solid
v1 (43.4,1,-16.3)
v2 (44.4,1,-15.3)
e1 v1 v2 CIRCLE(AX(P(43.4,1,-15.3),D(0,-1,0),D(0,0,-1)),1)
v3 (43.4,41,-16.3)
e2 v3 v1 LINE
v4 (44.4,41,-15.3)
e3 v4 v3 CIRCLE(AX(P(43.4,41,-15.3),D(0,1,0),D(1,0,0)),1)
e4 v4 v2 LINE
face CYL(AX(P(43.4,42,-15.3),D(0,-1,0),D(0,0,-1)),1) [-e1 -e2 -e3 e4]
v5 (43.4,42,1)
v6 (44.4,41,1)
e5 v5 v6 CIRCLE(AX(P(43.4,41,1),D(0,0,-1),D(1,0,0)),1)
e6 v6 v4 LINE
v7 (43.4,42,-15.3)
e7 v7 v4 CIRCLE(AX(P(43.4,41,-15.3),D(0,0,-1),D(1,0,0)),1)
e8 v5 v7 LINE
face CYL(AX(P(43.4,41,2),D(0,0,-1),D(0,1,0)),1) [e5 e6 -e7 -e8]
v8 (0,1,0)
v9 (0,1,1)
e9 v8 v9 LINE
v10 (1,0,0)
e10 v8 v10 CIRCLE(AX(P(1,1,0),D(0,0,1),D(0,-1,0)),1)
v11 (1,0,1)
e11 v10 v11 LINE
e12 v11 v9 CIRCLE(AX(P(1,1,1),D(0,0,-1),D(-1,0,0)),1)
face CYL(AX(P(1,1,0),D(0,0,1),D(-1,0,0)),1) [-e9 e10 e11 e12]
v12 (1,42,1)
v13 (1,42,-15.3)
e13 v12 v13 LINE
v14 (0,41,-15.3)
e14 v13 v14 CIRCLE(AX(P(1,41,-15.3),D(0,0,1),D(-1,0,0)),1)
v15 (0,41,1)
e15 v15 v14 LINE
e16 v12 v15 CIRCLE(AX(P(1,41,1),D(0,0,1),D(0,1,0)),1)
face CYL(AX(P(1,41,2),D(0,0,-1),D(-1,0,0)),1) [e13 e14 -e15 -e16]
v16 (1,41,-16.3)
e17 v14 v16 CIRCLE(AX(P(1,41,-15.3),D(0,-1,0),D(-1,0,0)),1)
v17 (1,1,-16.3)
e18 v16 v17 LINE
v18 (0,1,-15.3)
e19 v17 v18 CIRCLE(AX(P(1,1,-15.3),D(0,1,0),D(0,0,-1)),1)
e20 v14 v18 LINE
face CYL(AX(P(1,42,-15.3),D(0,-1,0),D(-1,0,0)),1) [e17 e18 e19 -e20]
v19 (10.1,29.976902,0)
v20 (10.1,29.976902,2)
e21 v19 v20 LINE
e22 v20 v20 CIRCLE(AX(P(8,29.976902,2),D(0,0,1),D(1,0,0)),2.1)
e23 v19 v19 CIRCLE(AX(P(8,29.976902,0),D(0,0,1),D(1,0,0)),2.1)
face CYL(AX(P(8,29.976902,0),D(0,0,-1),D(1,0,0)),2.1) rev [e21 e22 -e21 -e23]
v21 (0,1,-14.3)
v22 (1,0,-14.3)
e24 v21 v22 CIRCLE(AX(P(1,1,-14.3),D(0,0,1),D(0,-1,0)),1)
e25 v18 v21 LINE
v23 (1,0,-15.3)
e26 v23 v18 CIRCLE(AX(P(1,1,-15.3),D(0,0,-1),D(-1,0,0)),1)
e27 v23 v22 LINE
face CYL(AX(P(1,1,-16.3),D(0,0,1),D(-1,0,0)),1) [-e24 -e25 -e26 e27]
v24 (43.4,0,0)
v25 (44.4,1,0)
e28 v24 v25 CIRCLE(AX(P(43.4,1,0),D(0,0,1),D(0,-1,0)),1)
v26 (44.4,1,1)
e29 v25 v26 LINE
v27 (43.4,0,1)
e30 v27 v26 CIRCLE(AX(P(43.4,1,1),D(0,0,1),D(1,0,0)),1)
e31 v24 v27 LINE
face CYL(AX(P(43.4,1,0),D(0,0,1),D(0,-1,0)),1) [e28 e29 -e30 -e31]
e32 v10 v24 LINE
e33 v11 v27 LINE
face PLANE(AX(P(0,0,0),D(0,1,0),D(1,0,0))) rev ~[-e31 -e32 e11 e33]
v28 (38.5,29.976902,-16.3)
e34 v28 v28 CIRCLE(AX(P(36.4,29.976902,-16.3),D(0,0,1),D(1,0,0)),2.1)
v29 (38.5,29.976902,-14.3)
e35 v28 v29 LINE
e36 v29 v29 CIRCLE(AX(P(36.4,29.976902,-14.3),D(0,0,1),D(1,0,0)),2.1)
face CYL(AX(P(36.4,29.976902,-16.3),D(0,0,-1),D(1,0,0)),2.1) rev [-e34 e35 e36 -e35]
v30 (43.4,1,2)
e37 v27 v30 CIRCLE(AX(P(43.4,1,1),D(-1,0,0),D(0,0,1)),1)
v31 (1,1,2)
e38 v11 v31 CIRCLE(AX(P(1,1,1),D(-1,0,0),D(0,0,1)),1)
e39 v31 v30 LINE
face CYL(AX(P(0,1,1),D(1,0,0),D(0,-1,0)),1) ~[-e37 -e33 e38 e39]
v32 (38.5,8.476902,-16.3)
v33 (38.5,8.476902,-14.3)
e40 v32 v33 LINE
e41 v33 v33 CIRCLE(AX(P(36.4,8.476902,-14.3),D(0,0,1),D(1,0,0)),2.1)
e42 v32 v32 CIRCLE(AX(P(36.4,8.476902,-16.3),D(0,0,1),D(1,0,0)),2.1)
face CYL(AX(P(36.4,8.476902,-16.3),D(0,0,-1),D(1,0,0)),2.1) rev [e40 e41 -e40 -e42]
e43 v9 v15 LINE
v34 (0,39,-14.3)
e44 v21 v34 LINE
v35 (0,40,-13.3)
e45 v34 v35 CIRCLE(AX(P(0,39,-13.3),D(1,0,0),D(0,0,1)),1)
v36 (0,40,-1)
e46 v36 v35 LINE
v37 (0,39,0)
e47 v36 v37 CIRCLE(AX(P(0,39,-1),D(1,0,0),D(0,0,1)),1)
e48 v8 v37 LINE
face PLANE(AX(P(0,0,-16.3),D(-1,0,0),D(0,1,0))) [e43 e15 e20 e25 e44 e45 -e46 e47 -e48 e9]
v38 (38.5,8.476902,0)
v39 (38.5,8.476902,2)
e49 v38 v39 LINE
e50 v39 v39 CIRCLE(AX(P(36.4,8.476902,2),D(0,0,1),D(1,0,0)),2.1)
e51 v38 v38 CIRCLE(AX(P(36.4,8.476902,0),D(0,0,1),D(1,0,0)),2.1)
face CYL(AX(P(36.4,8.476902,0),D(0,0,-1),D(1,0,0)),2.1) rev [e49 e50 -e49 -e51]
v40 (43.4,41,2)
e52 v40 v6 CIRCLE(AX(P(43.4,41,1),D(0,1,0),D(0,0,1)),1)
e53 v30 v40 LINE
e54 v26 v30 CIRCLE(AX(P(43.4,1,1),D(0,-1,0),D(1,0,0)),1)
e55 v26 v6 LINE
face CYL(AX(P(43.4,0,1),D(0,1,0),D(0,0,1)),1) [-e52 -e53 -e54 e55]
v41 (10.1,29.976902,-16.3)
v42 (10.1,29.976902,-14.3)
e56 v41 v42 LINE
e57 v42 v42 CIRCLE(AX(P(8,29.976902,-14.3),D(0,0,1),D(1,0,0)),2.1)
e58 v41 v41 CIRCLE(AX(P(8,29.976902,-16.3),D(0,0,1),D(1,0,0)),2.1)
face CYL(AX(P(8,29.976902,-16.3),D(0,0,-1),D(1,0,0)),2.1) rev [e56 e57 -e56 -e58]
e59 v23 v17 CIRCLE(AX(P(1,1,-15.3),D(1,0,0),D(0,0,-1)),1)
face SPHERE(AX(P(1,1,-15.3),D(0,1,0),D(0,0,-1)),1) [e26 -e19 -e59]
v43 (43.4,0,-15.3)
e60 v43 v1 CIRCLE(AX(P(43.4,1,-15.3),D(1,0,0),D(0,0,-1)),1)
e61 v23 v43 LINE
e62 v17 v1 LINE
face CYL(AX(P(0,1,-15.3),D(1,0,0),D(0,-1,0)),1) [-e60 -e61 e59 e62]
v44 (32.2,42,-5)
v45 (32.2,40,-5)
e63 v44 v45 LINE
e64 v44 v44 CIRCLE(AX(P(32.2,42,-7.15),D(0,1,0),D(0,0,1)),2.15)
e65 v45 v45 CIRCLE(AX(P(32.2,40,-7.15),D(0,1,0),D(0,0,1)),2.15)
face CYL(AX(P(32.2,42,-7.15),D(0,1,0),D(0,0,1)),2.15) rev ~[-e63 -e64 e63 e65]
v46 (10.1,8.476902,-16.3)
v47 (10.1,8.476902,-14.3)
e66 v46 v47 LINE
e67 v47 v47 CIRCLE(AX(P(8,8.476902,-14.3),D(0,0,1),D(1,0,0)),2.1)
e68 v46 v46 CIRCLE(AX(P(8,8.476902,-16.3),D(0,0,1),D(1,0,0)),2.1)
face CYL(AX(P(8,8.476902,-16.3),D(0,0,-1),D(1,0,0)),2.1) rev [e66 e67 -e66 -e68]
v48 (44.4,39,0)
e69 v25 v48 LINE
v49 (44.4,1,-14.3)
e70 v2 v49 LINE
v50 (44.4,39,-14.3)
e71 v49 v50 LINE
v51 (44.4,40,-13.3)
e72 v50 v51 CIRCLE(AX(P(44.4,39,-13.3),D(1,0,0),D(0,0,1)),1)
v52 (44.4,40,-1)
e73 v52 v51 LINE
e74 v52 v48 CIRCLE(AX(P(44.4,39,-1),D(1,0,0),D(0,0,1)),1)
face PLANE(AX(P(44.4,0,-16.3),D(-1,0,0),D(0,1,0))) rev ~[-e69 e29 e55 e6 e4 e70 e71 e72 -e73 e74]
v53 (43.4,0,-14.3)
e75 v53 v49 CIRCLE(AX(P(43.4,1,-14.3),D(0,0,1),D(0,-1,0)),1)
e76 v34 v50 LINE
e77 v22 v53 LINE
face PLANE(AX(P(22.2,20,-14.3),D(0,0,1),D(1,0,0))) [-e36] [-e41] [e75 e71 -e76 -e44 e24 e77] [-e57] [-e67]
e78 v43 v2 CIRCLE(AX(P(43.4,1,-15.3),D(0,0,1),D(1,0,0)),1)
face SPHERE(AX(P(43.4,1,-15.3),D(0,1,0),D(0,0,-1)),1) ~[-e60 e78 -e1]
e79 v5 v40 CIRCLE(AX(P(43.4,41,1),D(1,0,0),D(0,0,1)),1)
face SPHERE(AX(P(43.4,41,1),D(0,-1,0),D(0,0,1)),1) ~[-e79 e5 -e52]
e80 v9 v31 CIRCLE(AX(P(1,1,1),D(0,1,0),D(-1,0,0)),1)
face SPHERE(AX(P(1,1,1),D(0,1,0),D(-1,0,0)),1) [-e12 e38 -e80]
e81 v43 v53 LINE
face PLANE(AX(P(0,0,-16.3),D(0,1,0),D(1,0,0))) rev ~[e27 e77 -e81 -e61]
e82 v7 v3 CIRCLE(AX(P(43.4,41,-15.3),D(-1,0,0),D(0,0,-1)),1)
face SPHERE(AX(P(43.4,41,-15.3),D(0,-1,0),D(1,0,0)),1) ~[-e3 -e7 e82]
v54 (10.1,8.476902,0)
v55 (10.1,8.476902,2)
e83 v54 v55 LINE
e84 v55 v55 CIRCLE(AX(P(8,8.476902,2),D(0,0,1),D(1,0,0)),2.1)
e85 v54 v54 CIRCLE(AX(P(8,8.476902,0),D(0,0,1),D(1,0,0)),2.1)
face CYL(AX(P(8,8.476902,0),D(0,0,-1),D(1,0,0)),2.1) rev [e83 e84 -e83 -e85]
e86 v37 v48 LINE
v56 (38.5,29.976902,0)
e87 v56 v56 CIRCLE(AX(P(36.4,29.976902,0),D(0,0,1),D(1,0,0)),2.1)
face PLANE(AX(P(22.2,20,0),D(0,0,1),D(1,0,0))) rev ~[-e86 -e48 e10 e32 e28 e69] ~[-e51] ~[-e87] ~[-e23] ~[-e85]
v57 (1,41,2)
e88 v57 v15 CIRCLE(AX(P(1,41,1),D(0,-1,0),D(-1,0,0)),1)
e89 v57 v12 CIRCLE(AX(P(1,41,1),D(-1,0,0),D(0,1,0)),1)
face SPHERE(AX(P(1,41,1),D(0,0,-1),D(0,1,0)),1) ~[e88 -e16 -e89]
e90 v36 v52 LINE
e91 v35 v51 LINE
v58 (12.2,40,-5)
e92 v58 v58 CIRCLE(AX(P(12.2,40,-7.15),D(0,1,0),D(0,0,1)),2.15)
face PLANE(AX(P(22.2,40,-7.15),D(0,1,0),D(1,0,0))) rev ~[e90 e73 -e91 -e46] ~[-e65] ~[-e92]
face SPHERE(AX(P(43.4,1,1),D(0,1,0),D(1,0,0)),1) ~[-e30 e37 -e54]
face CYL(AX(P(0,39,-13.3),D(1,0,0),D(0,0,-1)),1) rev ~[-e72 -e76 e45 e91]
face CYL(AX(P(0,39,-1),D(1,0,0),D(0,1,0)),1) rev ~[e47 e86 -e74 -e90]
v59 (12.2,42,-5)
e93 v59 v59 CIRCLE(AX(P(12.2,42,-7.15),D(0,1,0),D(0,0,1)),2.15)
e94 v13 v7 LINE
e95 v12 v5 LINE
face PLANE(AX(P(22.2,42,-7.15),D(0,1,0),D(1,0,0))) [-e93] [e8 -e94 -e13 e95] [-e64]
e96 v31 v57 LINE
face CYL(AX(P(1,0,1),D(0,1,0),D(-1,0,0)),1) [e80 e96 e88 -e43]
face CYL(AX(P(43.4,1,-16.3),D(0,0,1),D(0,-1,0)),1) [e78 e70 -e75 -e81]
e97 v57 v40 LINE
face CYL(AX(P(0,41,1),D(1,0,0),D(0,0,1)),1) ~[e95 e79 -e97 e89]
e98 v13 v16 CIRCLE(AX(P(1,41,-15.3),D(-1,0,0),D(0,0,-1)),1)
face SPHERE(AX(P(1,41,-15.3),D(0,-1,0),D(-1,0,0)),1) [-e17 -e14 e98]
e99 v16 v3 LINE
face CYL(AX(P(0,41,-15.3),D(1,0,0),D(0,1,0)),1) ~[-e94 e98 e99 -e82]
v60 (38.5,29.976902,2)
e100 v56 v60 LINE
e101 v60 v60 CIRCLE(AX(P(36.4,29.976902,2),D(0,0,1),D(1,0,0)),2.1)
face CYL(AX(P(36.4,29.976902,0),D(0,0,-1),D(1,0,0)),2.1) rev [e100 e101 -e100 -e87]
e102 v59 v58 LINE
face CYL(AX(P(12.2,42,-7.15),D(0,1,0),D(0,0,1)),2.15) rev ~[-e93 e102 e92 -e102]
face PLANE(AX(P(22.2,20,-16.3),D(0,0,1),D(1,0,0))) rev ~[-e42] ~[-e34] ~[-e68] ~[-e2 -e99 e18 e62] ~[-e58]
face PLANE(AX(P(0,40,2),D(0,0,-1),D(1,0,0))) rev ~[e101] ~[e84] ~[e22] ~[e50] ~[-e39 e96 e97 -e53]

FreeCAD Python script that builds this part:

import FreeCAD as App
import Part
import Sketcher

V = App.Vector
Q = App.Units.Quantity


def edges_at(feature, points):
    """Names of the edges that pass closest to the given points."""
    edges = feature.Shape.Edges
    near = lambda p: min(range(len(edges)), key=lambda i: edges[i].distToShape(Part.Vertex(*p))[0])
    return sorted({f"Edge{near(p) + 1}" for p in points})


def add_polygon(sketch, points):
    """Adds a closed chain of lines whose ends are joined by coincident constraints."""
    first, n = sketch.GeometryCount, len(points)
    for a, b in zip(points, points[1:] + points[:1]):
        sketch.addGeometry(Part.LineSegment(App.Vector(*a, 0), App.Vector(*b, 0)), False)
    for i in range(n):
        sketch.addConstraint(Sketcher.Constraint("Coincident", first + i, 2, first + (i + 1) % n, 1))

doc = App.newDocument("Part")
body = doc.addObject("PartDesign::Body", "Body")

sketch1 = doc.addObject("Sketcher::SketchObject", "Sketch")
body.addObject(sketch1)
sketch1.AttachmentSupport = (doc.XY_Plane, [""])
sketch1.MapMode = "FlatFace"
add_polygon(sketch1, [(0, 40), (0, 0), (44.4, 0), (44.4, 40)])
sketch1.addGeometry(Part.Circle(V(8, 8.476902, 0), V(0, 0, 1), 2.1), False)
sketch1.addGeometry(Part.Circle(V(36.4, 8.476902, 0), V(0, 0, 1), 2.1), False)
sketch1.addGeometry(Part.Circle(V(8, 29.976902, 0), V(0, 0, 1), 2.1), False)
sketch1.addGeometry(Part.Circle(V(36.4, 29.976902, 0), V(0, 0, 1), 2.1), False)
sketch1.addConstraint([
    Sketcher.Constraint("Vertical", 0),
    Sketcher.Constraint("Horizontal", 1),
    Sketcher.Constraint("Vertical", 2),
    Sketcher.Constraint("Horizontal", 3),
    Sketcher.Constraint("Coincident", 0, 2, -1, 1),
    Sketcher.Constraint("Equal", 4, 5),
    Sketcher.Constraint("Equal", 5, 6),
    Sketcher.Constraint("Equal", 6, 7),
    Sketcher.Constraint("Horizontal", 4, 3, 5, 3),
    Sketcher.Constraint("Horizontal", 6, 3, 7, 3),
    Sketcher.Constraint("Vertical", 4, 3, 6, 3),
    Sketcher.Constraint("Vertical", 5, 3, 7, 3),
    Sketcher.Constraint("Diameter", 4, Q("4.2 mm")),
    Sketcher.Constraint("DistanceY", 0, 2, 0, 1, Q("40 mm")),
    Sketcher.Constraint("DistanceX", 1, 1, 1, 2, Q("44.4 mm")),
    Sketcher.Constraint("DistanceX", -1, 1, 4, 3, Q("8 mm")),
    Sketcher.Constraint("DistanceX", 5, 3, 1, 2, Q("8 mm")),
    Sketcher.Constraint("DistanceY", 4, 3, 6, 3, Q("21.5 mm")),
    Sketcher.Constraint("DistanceY", -1, 1, 4, 3, Q("8.476902 mm")),
])
pad1 = doc.addObject("PartDesign::Pad", "Pad")
body.addObject(pad1)
pad1.Profile = sketch1
pad1.Length = 2

sketch2 = doc.addObject("Sketcher::SketchObject", "Sketch001")
body.addObject(sketch2)
sketch2.AttachmentSupport = (doc.XZ_Plane, [""])
sketch2.MapMode = "FlatFace"
sketch2.AttachmentOffset = App.Placement(V(0, 0, -40), App.Rotation())
add_polygon(sketch2, [(0, -16.3), (0, 2), (44.4, 2), (44.4, -16.3)])
sketch2.addConstraint([
    Sketcher.Constraint("Vertical", 0),
    Sketcher.Constraint("Horizontal", 1),
    Sketcher.Constraint("Vertical", 2),
    Sketcher.Constraint("Horizontal", 3),
    Sketcher.Constraint("PointOnObject", 0, 2, -2),
    Sketcher.Constraint("DistanceX", 1, 1, 1, 2, Q("44.4 mm")),
    Sketcher.Constraint("DistanceY", 0, 1, 0, 2, Q("18.3 mm")),
    Sketcher.Constraint("DistanceY", -1, 1, 0, 2, Q("2 mm")),
])
pad2 = doc.addObject("PartDesign::Pad", "Pad001")
body.addObject(pad2)
pad2.Profile = sketch2
pad2.Length = 2
pad2.Reversed = True
doc.recompute()

linearpattern = doc.addObject("PartDesign::LinearPattern", "LinearPattern")
body.addObject(linearpattern)
linearpattern.Originals = [pad1]
linearpattern.Direction = (doc.Z_Axis, [""])
linearpattern.Mode = "offset"
linearpattern.Offset = 16.3
linearpattern.Occurrences = 2
linearpattern.Reversed = True
body.Tip = linearpattern

sketch3 = doc.addObject("Sketcher::SketchObject", "Sketch002")
body.addObject(sketch3)
sketch3.AttachmentSupport = (doc.XZ_Plane, [""])
sketch3.MapMode = "FlatFace"
sketch3.AttachmentOffset = App.Placement(V(0, 0, -42), App.Rotation())
sketch3.addGeometry([
    Part.Circle(V(12.2, -7.15, 0), V(0, 0, 1), 2.15),
    Part.Circle(V(32.2, -7.15, 0), V(0, 0, 1), 2.15),
], False)
sketch3.addConstraint([
    Sketcher.Constraint("Equal", 0, 1),
    Sketcher.Constraint("Horizontal", 0, 3, 1, 3),
    Sketcher.Constraint("Diameter", 0, Q("4.3 mm")),
    Sketcher.Constraint("DistanceX", 0, 3, 1, 3, Q("20 mm")),
    Sketcher.Constraint("DistanceX", -1, 1, 0, 3, Q("12.2 mm")),
    Sketcher.Constraint("DistanceY", 0, 3, -1, 1, Q("7.15 mm")),
])
pocket1 = doc.addObject("PartDesign::Pocket", "Pocket")
body.addObject(pocket1)
pocket1.Profile = sketch3
pocket1.Type = "ThroughAll"
pocket1.Reversed = True
doc.recompute()

fillet = doc.addObject("PartDesign::Fillet", "Fillet")
body.addObject(fillet)
fillet.Base = (pocket1, edges_at(pocket1, [
    (44.4, 21, 2),
    (0, 21, -16.3),
    (44.4, 21, -16.3),
    (0, 42, -7.15),
    (22.2, 42, 2),
    (44.4, 42, -7.15),
    (22.2, 42, -16.3),
    (22.2, 40, -14.3),
    (22.2, 0, -16.3),
    (0, 0, -15.3),
    (44.4, 0, -15.3),
    (0, 21, 2),
    (22.2, 40, 0),
    (44.4, 0, 1),
    (0, 0, 1),
    (22.2, 0, 2),
]))
fillet.Radius = 1

doc.recompute()
